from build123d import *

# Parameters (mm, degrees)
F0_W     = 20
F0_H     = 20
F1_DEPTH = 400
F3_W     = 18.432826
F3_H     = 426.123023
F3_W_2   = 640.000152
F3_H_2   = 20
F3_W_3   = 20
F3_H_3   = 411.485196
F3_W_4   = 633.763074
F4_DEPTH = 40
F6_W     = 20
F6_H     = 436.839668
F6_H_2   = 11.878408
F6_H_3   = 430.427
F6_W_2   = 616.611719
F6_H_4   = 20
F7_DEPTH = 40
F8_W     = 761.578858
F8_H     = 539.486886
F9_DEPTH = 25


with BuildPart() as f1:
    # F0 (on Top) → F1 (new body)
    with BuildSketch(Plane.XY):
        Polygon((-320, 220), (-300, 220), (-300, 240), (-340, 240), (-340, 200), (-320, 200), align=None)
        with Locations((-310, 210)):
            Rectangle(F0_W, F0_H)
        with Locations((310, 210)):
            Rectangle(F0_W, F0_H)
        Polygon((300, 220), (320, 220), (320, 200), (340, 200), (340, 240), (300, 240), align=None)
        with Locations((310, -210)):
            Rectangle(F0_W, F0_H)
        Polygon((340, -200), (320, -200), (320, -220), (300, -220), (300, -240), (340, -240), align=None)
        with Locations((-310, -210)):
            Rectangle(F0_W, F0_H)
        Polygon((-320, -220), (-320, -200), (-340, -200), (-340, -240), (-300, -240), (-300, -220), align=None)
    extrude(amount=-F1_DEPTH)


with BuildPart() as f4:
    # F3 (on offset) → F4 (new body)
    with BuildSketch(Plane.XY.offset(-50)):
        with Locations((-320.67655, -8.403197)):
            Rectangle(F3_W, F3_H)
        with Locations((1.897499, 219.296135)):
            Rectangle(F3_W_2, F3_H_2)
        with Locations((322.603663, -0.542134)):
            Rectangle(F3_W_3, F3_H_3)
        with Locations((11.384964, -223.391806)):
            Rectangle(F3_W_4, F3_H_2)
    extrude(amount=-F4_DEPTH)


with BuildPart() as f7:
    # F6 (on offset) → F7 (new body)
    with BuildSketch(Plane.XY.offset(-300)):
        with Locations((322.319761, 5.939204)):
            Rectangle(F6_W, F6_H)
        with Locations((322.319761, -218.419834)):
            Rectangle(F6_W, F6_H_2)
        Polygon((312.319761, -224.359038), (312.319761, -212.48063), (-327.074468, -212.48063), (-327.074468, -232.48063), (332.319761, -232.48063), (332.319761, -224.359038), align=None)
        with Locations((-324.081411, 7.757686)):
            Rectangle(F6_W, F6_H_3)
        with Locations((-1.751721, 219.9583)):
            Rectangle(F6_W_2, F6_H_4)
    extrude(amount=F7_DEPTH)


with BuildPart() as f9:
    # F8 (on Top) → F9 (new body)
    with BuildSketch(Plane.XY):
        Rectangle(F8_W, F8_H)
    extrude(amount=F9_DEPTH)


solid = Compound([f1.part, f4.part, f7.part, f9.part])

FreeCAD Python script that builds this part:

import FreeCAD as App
import Part
import Sketcher

V = App.Vector


def add_polygon(sketch, points):
    """Adds a closed chain of lines whose ends are joined by coincident constraints."""
    first, n = sketch.GeometryCount, len(points)
    for a, b in zip(points, points[1:] + points[:1]):
        sketch.addGeometry(Part.LineSegment(App.Vector(*a, 0), App.Vector(*b, 0)), False)
    for i in range(n):
        sketch.addConstraint(Sketcher.Constraint("Coincident", first + i, 2, first + (i + 1) % n, 1))

doc = App.newDocument("Part")
body = doc.addObject("PartDesign::Body", "Body")
body.AllowCompound = True

sketch1 = body.newObject("Sketcher::SketchObject", "Sketch")
sketch1.AttachmentSupport = (doc.getObject("XY_Plane"), [""])
sketch1.MapMode = "FlatFace"
add_polygon(sketch1, [(-300, 240), (-340, 240), (-340, 200), (-300, 200)])
add_polygon(sketch1, [(300, 200), (340, 200), (340, 240), (300, 240)])
add_polygon(sketch1, [(300, -200), (300, -240), (340, -240), (340, -200)])
add_polygon(sketch1, [(-300, -200), (-340, -200), (-340, -240), (-300, -240)])
sketch1.addConstraint(Sketcher.Constraint("Horizontal", 0))
sketch1.addConstraint(Sketcher.Constraint("Vertical", 1))
sketch1.addConstraint(Sketcher.Constraint("Horizontal", 2))
sketch1.addConstraint(Sketcher.Constraint("Vertical", 3))
sketch1.addConstraint(Sketcher.Constraint("Horizontal", 4))
sketch1.addConstraint(Sketcher.Constraint("Vertical", 5))
sketch1.addConstraint(Sketcher.Constraint("Horizontal", 6))
sketch1.addConstraint(Sketcher.Constraint("Vertical", 7))
sketch1.addConstraint(Sketcher.Constraint("Vertical", 8))
sketch1.addConstraint(Sketcher.Constraint("Horizontal", 9))
sketch1.addConstraint(Sketcher.Constraint("Vertical", 10))
sketch1.addConstraint(Sketcher.Constraint("Horizontal", 11))
sketch1.addConstraint(Sketcher.Constraint("Horizontal", 12))
sketch1.addConstraint(Sketcher.Constraint("Vertical", 13))
sketch1.addConstraint(Sketcher.Constraint("Horizontal", 14))
sketch1.addConstraint(Sketcher.Constraint("Vertical", 15))
sketch1.addConstraint(Sketcher.Constraint("Symmetric", 3, 2, 8, 2, -1, 1))
sketch1.addConstraint(Sketcher.Constraint("Symmetric", 1, 2, 10, 2, -1, 1))
sketch1.addConstraint(Sketcher.Constraint("Symmetric", 4, 2, 12, 2, -1, 1))
sketch1.addConstraint(Sketcher.Constraint("Symmetric", 6, 2, 14, 2, -1, 1))
sketch1.addConstraint(Sketcher.Constraint("Symmetric", 1, 2, 4, 2, -2))
sketch1.addConstraint(Sketcher.Constraint("Symmetric", 3, 2, 6, 2, -2))
sketch1.addConstraint(Sketcher.Constraint("Equal", 14, 1))
sketch1.addConstraint(Sketcher.Constraint("DistanceX", 0, 2, 0, 1, 40.0))
sketch1.addConstraint(Sketcher.Constraint("DistanceX", 0, 2, -1, 1, 340.0))
sketch1.addConstraint(Sketcher.Constraint("DistanceY", -1, 1, 0, 2, 240.0))
pad1 = body.newObject("PartDesign::Pad", "Pad")
pad1.Profile = sketch1
pad1.Length = 400
pad1.Reversed = True
body2 = doc.addObject("PartDesign::Body", "Body001")
body2.AllowCompound = True

sketch2 = body2.newObject("Sketcher::SketchObject", "Sketch001")
sketch2.AttachmentSupport = (doc.getObject("XY_Plane001"), [""])
sketch2.MapMode = "FlatFace"
sketch2.AttachmentOffset = App.Placement(V(0, 0, -50), App.Rotation())
add_polygon(sketch2, [(-330, 205), (-330, -221), (-311, -221), (-311, 205)])
add_polygon(sketch2, [(-318, 229), (-318, 209), (322, 209), (322, 229)])
add_polygon(sketch2, [(313, 205), (313, -206), (333, -206), (333, 205)])
add_polygon(sketch2, [(-305, -213), (-305, -233), (328, -233), (328, -213)])
sketch2.addConstraint(Sketcher.Constraint("Vertical", 0))
sketch2.addConstraint(Sketcher.Constraint("Horizontal", 1))
sketch2.addConstraint(Sketcher.Constraint("Vertical", 2))
sketch2.addConstraint(Sketcher.Constraint("Horizontal", 3))
sketch2.addConstraint(Sketcher.Constraint("Vertical", 4))
sketch2.addConstraint(Sketcher.Constraint("Horizontal", 5))
sketch2.addConstraint(Sketcher.Constraint("Vertical", 6))
sketch2.addConstraint(Sketcher.Constraint("Horizontal", 7))
sketch2.addConstraint(Sketcher.Constraint("Vertical", 8))
sketch2.addConstraint(Sketcher.Constraint("Horizontal", 9))
sketch2.addConstraint(Sketcher.Constraint("Vertical", 10))
sketch2.addConstraint(Sketcher.Constraint("Horizontal", 11))
sketch2.addConstraint(Sketcher.Constraint("Vertical", 12))
sketch2.addConstraint(Sketcher.Constraint("Horizontal", 13))
sketch2.addConstraint(Sketcher.Constraint("Vertical", 14))
sketch2.addConstraint(Sketcher.Constraint("Horizontal", 15))
sketch2.addConstraint(Sketcher.Constraint("Equal", 11, 4))
sketch2.addConstraint(Sketcher.Constraint("Equal", 6, 12))
sketch2.addConstraint(Sketcher.Constraint("DistanceX", 9, 1, 9, 2, 20.0))
sketch2.addConstraint(Sketcher.Constraint("DistanceX", -1, 1, 13, 2, 328.266501))
sketch2.addConstraint(Sketcher.Constraint("DistanceX", 1, 2, 8, 2, 624.0638))
sketch2.addConstraint(Sketcher.Constraint("DistanceX", 1, 1, 1, 2, 18.432826))
sketch2.addConstraint(Sketcher.Constraint("DistanceX", 5, 1, 5, 2, 640.000152))
sketch2.addConstraint(Sketcher.Constraint("DistanceX", 13, 1, 13, 2, 633.763074))
sketch2.addConstraint(Sketcher.Constraint("DistanceY", 0, 2, 0, 1, 426.123023))
sketch2.addConstraint(Sketcher.Constraint("DistanceY", 8, 2, 8, 1, 411.485196))
sketch2.addConstraint(Sketcher.Constraint("DistanceY", 0, 2, -1, 1, 221.464709))
sketch2.addConstraint(Sketcher.Constraint("DistanceY", 8, 2, -1, 1, 206.284732))
sketch2.addConstraint(Sketcher.Constraint("DistanceX", 4, 2, 2, 2, 6.64244))
sketch2.addConstraint(Sketcher.Constraint("DistanceY", 2, 2, 4, 2, 4.637821))
sketch2.addConstraint(Sketcher.Constraint("DistanceX", 0, 2, 12, 2, 24.39639))
sketch2.addConstraint(Sketcher.Constraint("DistanceY", 12, 2, 2, 2, 438.05012))
pad2 = body2.newObject("PartDesign::Pad", "Pad001")
pad2.Profile = sketch2
pad2.Length = 40
pad2.Reversed = True
body3 = doc.addObject("PartDesign::Body", "Body002")
body3.AllowCompound = True

sketch3 = body3.newObject("Sketcher::SketchObject", "Sketch002")
sketch3.AttachmentSupport = (doc.getObject("XY_Plane002"), [""])
sketch3.MapMode = "FlatFace"
sketch3.AttachmentOffset = App.Placement(V(0, 0, -300), App.Rotation())
add_polygon(sketch3, [(312, 224), (312, -212), (-327, -212), (-327, -232), (332, -232), (332, 224)])
add_polygon(sketch3, [(-334, 223), (-334, -207), (-314, -207), (-314, 223)])
add_polygon(sketch3, [(-310, 230), (-310, 210), (307, 210), (307, 230)])
sketch3.addConstraint(Sketcher.Constraint("Vertical", 0))
sketch3.addConstraint(Sketcher.Constraint("Horizontal", 1))
sketch3.addConstraint(Sketcher.Constraint("Vertical", 2))
sketch3.addConstraint(Sketcher.Constraint("Horizontal", 3))
sketch3.addConstraint(Sketcher.Constraint("Vertical", 4))
sketch3.addConstraint(Sketcher.Constraint("Horizontal", 5))
sketch3.addConstraint(Sketcher.Constraint("Vertical", 6))
sketch3.addConstraint(Sketcher.Constraint("Horizontal", 7))
sketch3.addConstraint(Sketcher.Constraint("Vertical", 8))
sketch3.addConstraint(Sketcher.Constraint("Horizontal", 9))
sketch3.addConstraint(Sketcher.Constraint("Vertical", 10))
sketch3.addConstraint(Sketcher.Constraint("Horizontal", 11))
sketch3.addConstraint(Sketcher.Constraint("Vertical", 12))
sketch3.addConstraint(Sketcher.Constraint("Horizontal", 13))
sketch3.addConstraint(Sketcher.Constraint("Equal", 5, 7))
sketch3.addConstraint(Sketcher.Constraint("Equal", 9, 2))
sketch3.addConstraint(Sketcher.Constraint("Equal", 2, 10))
sketch3.addConstraint(Sketcher.Constraint("DistanceX", 5, 2, 5, 1, 20.0))
sketch3.addConstraint(Sketcher.Constraint("DistanceY", 6, 2, 6, 1, 430.427))
sketch3.addConstraint(Sketcher.Constraint("DistanceX", 1, 2, 1, 1, 639.394229))
sketch3.addConstraint(Sketcher.Constraint("DistanceX", 11, 1, 11, 2, 616.611719))
sketch3.addConstraint(Sketcher.Constraint("DistanceY", -1, 1, 10, 2, 209.9583))
sketch3.addConstraint(Sketcher.Constraint("DistanceY", 0, 2, 0, 1, 436.839668))
sketch3.addConstraint(Sketcher.Constraint("DistanceX", -1, 1, 0, 2, 312.319761))
sketch3.addConstraint(Sketcher.Constraint("DistanceY", 0, 2, -1, 1, 212.48063))
sketch3.addConstraint(Sketcher.Constraint("DistanceX", 6, 2, -1, 1, 334.081411))
sketch3.addConstraint(Sketcher.Constraint("DistanceX", 10, 2, -1, 1, 310.05758))
sketch3.addConstraint(Sketcher.Constraint("DistanceY", 6, 2, 5, 2, 431.814852))
pad3 = body3.newObject("PartDesign::Pad", "Pad002")
pad3.Profile = sketch3
pad3.Length = 40
body4 = doc.addObject("PartDesign::Body", "Body003")

sketch4 = body4.newObject("Sketcher::SketchObject", "Sketch003")
sketch4.AttachmentSupport = (doc.getObject("XY_Plane003"), [""])
sketch4.MapMode = "FlatFace"
add_polygon(sketch4, [(-381, 270), (-381, -270), (381, -270), (381, 270)])
sketch4.addConstraint(Sketcher.Constraint("Vertical", 0))
sketch4.addConstraint(Sketcher.Constraint("Horizontal", 1))
sketch4.addConstraint(Sketcher.Constraint("Vertical", 2))
sketch4.addConstraint(Sketcher.Constraint("Horizontal", 3))
sketch4.addConstraint(Sketcher.Constraint("Symmetric", 0, 2, 2, 2, -1, 1))
sketch4.addConstraint(Sketcher.Constraint("DistanceX", 1, 1, 1, 2, 761.578858))
sketch4.addConstraint(Sketcher.Constraint("DistanceY", 0, 2, 0, 1, 539.486886))
pad4 = body4.newObject("PartDesign::Pad", "Pad003")
pad4.Profile = sketch4
pad4.Length = 25

doc.recompute()
